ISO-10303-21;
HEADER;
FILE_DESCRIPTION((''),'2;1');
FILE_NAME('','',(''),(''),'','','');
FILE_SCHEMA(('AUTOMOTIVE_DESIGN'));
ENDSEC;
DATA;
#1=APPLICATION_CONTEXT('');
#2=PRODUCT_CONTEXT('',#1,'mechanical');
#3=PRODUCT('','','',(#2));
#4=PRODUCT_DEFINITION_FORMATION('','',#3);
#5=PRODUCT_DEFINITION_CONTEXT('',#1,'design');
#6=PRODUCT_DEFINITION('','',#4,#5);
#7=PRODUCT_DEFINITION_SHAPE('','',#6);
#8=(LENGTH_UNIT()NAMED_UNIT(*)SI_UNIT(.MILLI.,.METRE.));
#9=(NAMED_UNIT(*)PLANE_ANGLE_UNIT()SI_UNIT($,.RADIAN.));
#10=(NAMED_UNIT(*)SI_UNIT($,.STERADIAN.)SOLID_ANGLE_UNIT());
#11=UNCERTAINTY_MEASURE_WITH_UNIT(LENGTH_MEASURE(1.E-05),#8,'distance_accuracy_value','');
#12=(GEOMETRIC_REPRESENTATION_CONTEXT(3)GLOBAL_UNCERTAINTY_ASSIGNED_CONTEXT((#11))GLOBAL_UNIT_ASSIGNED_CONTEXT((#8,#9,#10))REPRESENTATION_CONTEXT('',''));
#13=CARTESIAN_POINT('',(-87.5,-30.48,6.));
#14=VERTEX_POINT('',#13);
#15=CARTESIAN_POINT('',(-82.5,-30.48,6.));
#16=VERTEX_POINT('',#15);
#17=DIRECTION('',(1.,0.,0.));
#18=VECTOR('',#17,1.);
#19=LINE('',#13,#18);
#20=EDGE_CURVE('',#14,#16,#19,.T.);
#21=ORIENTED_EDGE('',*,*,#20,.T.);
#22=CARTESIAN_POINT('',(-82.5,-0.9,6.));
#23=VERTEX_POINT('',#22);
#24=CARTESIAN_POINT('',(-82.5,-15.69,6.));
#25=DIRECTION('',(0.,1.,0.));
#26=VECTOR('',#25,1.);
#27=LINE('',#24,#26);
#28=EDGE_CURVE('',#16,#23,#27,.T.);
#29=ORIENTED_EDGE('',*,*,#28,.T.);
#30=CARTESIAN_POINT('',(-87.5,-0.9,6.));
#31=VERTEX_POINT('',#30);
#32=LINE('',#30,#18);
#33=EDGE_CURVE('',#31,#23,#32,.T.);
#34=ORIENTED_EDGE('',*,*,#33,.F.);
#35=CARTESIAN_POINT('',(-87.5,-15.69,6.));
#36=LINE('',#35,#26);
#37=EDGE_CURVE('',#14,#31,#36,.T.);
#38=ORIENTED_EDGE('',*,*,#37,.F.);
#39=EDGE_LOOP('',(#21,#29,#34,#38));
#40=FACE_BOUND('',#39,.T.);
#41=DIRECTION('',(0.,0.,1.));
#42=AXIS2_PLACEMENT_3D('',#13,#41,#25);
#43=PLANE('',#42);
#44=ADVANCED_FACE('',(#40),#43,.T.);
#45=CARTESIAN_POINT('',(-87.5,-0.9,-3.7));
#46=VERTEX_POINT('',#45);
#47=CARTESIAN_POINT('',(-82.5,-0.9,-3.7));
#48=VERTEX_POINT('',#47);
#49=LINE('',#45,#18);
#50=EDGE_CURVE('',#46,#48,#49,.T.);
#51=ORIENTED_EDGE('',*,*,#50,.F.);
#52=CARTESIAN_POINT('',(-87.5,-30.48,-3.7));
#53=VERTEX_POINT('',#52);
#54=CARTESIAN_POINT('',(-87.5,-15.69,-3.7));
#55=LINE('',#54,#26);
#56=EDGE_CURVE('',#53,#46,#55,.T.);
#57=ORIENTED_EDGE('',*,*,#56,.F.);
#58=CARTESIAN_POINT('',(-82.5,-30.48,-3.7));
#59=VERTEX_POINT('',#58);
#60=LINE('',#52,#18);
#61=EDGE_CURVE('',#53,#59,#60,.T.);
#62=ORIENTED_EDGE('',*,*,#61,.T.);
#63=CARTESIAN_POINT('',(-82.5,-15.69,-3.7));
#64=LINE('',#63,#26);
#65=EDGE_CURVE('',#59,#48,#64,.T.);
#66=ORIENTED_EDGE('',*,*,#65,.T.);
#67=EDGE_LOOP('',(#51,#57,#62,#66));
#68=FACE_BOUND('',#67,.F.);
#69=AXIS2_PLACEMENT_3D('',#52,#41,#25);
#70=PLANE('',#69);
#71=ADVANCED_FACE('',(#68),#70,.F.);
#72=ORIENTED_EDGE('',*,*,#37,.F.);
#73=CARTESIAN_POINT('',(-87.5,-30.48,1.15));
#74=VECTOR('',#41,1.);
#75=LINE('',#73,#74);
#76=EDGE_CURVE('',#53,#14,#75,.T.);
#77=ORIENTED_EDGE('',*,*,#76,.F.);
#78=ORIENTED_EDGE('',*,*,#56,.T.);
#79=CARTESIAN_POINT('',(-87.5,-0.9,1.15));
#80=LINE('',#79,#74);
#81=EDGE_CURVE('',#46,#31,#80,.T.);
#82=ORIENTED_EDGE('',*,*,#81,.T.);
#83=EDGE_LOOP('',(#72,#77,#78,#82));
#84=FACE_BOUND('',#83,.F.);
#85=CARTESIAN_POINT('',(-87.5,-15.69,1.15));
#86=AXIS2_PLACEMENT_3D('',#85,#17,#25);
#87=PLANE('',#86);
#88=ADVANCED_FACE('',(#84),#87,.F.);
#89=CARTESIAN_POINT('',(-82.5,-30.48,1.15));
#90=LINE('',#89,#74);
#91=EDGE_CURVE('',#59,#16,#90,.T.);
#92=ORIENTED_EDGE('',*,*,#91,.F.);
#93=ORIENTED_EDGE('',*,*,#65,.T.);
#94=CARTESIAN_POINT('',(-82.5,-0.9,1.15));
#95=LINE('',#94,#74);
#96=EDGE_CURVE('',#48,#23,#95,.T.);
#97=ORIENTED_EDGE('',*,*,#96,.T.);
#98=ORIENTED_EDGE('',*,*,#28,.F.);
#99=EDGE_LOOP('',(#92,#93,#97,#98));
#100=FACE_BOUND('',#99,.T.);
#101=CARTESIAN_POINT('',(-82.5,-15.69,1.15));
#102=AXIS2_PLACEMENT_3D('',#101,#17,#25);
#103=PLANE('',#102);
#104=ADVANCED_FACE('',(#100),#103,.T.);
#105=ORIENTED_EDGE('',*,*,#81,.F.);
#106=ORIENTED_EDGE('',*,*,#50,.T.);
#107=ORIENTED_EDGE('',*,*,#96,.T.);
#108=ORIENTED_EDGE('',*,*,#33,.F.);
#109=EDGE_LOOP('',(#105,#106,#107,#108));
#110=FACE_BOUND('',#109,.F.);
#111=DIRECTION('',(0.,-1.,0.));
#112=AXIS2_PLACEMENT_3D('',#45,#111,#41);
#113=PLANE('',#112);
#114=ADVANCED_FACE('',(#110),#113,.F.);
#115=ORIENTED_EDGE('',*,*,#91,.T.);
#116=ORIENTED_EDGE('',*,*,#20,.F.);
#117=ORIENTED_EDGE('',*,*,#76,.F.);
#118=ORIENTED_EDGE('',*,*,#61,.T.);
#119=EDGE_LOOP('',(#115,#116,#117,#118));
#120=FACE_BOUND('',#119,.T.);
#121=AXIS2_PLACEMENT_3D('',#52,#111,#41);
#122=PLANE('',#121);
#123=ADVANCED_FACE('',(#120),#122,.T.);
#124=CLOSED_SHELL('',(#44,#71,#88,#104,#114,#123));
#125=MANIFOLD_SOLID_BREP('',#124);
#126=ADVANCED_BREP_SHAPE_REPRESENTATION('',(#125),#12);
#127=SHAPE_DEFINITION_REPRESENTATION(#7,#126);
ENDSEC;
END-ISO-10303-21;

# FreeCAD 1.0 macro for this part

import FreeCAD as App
import Part
import Sketcher
from FreeCAD import Vector

doc = App.newDocument("Part")
body = doc.addObject("PartDesign::Body", "Body")

sketch1 = doc.addObject("Sketcher::SketchObject", "Sketch")
body.addObject(sketch1)
sketch1.AttachmentSupport = (doc.YZ_Plane, [""])
sketch1.MapMode = "FlatFace"
sketch1.AttachmentOffset = App.Placement(Vector(0, 0, -87.5), App.Rotation())
sketch1.addGeometry([
    Part.LineSegment(Vector(-30.48, 6, 0), Vector(-30.48, -3.7, 0)),
    Part.LineSegment(Vector(-30.48, -3.7, 0), Vector(-0.9, -3.7, 0)),
    Part.LineSegment(Vector(-0.9, -3.7, 0), Vector(-0.9, 6, 0)),
    Part.LineSegment(Vector(-0.9, 6, 0), Vector(-30.48, 6, 0)),
], False)
sketch1.addConstraint([
    Sketcher.Constraint("Coincident", 0, 2, 1, 1),
    Sketcher.Constraint("Coincident", 1, 2, 2, 1),
    Sketcher.Constraint("Coincident", 2, 2, 3, 1),
    Sketcher.Constraint("Coincident", 3, 2, 0, 1),
    Sketcher.Constraint("Vertical", 0),
    Sketcher.Constraint("Horizontal", 1),
    Sketcher.Constraint("Vertical", 2),
    Sketcher.Constraint("Horizontal", 3),
    Sketcher.Constraint("DistanceY", 0, 2, 0, 1, 9.7),
    Sketcher.Constraint("DistanceY", -1, 1, 2, 2, 6.0),
    Sketcher.Constraint("DistanceX", 1, 1, 1, 2, 29.58),
    Sketcher.Constraint("DistanceX", 1, 2, -1, 1, 0.9),
])
pad1 = doc.addObject("PartDesign::Pad", "Pad")
body.addObject(pad1)
pad1.Profile = sketch1
pad1.Length = 5

doc.recompute()
